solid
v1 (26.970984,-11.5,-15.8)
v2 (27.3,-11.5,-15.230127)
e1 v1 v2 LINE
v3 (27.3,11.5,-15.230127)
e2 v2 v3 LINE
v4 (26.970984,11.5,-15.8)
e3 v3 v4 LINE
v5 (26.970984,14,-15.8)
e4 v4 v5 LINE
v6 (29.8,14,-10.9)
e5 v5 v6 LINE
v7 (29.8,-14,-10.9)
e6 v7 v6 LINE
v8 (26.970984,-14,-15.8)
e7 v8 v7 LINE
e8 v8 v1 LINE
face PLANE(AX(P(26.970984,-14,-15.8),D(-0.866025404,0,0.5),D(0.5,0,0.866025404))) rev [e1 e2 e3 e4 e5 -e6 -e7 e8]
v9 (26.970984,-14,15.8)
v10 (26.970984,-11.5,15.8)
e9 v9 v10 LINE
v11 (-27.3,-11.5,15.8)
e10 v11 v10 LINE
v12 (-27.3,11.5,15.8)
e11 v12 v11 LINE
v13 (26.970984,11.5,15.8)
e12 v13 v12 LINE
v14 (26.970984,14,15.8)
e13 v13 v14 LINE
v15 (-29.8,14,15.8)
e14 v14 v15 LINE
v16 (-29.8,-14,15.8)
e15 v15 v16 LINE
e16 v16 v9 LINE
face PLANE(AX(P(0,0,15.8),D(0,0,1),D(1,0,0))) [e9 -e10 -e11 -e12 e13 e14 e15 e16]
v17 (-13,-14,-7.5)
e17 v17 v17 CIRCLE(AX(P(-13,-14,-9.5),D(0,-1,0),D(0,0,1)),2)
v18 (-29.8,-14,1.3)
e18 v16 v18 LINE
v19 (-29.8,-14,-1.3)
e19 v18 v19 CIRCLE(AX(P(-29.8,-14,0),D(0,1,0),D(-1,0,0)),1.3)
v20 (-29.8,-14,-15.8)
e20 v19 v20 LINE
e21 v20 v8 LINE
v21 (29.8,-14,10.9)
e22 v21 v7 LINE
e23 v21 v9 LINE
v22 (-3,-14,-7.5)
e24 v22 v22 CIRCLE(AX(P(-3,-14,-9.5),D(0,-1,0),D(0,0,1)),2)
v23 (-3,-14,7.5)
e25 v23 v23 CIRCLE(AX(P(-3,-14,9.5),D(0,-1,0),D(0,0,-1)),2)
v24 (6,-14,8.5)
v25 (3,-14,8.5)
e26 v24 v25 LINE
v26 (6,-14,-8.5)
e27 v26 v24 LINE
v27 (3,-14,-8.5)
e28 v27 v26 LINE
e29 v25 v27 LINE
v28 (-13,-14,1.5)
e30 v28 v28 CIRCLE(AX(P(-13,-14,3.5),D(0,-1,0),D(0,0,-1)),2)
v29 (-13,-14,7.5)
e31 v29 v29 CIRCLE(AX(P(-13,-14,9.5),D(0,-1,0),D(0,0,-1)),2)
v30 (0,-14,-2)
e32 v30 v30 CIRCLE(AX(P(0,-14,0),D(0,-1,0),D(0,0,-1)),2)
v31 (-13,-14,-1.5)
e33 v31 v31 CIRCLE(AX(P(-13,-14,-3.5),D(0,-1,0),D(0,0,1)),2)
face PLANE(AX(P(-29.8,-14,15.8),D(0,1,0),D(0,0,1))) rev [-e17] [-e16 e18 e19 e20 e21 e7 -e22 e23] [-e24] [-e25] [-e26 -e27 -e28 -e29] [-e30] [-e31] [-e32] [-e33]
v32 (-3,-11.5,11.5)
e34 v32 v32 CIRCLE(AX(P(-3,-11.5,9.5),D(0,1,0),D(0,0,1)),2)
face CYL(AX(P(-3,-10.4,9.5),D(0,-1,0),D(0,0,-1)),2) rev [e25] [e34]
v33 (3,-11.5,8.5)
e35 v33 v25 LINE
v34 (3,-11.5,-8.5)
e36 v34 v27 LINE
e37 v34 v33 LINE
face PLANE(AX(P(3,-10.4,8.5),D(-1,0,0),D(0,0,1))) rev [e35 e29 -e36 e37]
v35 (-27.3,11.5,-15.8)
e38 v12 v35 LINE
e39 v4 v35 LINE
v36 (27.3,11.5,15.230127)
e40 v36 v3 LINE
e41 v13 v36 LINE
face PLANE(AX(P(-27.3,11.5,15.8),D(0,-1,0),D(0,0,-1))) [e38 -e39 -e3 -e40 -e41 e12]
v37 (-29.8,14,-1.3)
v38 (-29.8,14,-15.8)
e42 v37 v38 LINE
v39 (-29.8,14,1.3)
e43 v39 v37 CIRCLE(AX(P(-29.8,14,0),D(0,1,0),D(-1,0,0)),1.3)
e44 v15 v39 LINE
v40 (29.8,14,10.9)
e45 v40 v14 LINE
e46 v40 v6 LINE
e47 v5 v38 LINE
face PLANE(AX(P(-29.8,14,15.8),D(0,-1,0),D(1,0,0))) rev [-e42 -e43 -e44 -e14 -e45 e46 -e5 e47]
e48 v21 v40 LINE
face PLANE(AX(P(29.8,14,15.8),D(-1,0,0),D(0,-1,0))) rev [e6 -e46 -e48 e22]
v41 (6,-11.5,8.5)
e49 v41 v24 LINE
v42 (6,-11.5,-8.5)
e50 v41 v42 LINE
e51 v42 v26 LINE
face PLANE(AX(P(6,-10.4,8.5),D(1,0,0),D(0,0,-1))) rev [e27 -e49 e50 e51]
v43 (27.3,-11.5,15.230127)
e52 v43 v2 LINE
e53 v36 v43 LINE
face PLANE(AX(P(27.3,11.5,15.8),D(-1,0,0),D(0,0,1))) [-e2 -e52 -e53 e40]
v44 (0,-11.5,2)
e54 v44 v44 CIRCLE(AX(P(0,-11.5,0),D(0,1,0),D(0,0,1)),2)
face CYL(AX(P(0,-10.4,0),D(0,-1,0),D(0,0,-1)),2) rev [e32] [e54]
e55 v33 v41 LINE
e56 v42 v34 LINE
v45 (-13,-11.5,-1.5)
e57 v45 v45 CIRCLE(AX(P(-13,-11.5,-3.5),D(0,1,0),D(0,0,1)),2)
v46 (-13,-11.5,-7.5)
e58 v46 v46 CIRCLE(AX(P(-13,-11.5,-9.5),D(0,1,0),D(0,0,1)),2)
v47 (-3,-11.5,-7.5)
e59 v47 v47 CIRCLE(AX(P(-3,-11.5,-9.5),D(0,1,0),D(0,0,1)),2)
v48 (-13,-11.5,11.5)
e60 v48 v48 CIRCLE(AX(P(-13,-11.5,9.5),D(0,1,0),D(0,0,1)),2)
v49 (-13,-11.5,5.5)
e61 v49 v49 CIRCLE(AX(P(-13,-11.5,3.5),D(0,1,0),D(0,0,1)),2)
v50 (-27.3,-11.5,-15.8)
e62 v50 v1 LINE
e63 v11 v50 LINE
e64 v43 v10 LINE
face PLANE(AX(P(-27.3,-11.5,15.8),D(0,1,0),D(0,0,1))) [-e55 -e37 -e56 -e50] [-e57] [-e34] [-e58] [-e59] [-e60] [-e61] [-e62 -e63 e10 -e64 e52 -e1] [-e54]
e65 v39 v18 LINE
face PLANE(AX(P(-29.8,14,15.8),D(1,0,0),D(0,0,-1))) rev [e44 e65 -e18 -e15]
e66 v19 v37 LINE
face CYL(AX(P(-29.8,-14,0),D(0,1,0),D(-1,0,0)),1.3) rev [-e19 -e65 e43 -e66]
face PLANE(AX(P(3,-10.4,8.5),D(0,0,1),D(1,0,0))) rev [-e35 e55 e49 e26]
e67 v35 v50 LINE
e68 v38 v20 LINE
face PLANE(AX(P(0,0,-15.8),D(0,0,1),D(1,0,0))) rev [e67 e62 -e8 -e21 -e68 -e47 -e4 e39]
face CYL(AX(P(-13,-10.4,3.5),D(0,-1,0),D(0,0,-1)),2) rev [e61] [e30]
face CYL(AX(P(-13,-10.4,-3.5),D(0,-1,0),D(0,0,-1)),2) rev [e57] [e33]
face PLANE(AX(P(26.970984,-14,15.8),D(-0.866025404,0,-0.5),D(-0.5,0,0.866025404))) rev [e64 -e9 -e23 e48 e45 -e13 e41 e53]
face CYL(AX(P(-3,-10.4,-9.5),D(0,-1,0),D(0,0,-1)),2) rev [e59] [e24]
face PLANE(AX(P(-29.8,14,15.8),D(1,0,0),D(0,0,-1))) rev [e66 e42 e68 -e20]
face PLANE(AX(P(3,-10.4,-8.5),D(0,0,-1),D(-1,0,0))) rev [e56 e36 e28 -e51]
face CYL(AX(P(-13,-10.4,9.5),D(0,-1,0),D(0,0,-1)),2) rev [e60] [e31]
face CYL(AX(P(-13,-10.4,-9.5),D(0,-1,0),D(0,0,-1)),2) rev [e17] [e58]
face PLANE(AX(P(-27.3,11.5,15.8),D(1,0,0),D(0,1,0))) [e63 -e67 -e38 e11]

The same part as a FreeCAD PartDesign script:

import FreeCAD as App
import Part
import Sketcher
from FreeCAD import Vector
Q = App.Units.Quantity

doc = App.newDocument("Part")
params = doc.addObject("Spreadsheet::Sheet", "Params")
for row, (alias, value) in enumerate([
    ("sketch1_height", "28 mm"),
    ("sketch1_height2", "23 mm"),
    ("sketch1_width", "59.6 mm"),
    ("sketch1_width2", "54.6 mm"),
    ("pad1_length", "31.6 mm"),
    ("sketch2_diameter", "2.6 mm"),
    ("sketch2_height", "4.9 mm"),
    ("sketch3_diameter", "4 mm"),
    ("sketch3_width", "3 mm"),
    ("sketch3_height", "17 mm"),
    ("pocket2_length", "3.6 mm"),
], start=1):
    params.set(f"A{row}", alias)
    params.set(f"B{row}", "=" + value)
    params.setAlias(f"B{row}", alias)

body = doc.addObject("PartDesign::Body", "Body")

# Sketch on XY plane
sketch1 = doc.addObject("Sketcher::SketchObject", "Sketch")
body.addObject(sketch1)
sketch1.AttachmentSupport = (doc.XY_Plane, [""])
sketch1.MapMode = "FlatFace"
sketch1.addGeometry(Part.LineSegment(Vector(-29.8, 14, 0), Vector(-29.8, -14, 0)), False)
sketch1.addGeometry(Part.LineSegment(Vector(-29.8, -14, 0), Vector(29.8, -14, 0)), False)
sketch1.addGeometry(Part.LineSegment(Vector(29.8, -14, 0), Vector(29.8, 14, 0)), False)
sketch1.addGeometry(Part.LineSegment(Vector(29.8, 14, 0), Vector(-29.8, 14, 0)), False)
sketch1.addGeometry(Part.LineSegment(Vector(27.3, -11.5, 0), Vector(-27.3, -11.5, 0)), False)
sketch1.addGeometry(Part.LineSegment(Vector(-27.3, -11.5, 0), Vector(-27.3, 11.5, 0)), False)
sketch1.addGeometry(Part.LineSegment(Vector(-27.3, 11.5, 0), Vector(27.3, 11.5, 0)), False)
sketch1.addGeometry(Part.LineSegment(Vector(27.3, 11.5, 0), Vector(27.3, -11.5, 0)), False)
sketch1.addConstraint(Sketcher.Constraint("Coincident", 0, 2, 1, 1))
sketch1.addConstraint(Sketcher.Constraint("Coincident", 1, 2, 2, 1))
sketch1.addConstraint(Sketcher.Constraint("Coincident", 2, 2, 3, 1))
sketch1.addConstraint(Sketcher.Constraint("Coincident", 3, 2, 0, 1))
sketch1.addConstraint(Sketcher.Constraint("Coincident", 4, 2, 5, 1))
sketch1.addConstraint(Sketcher.Constraint("Coincident", 5, 2, 6, 1))
sketch1.addConstraint(Sketcher.Constraint("Coincident", 6, 2, 7, 1))
sketch1.addConstraint(Sketcher.Constraint("Coincident", 7, 2, 4, 1))
sketch1.addConstraint(Sketcher.Constraint("Vertical", 0))
sketch1.addConstraint(Sketcher.Constraint("Horizontal", 1))
sketch1.addConstraint(Sketcher.Constraint("Vertical", 2))
sketch1.addConstraint(Sketcher.Constraint("Horizontal", 3))
sketch1.addConstraint(Sketcher.Constraint("Horizontal", 4))
sketch1.addConstraint(Sketcher.Constraint("Vertical", 5))
sketch1.addConstraint(Sketcher.Constraint("Horizontal", 6))
sketch1.addConstraint(Sketcher.Constraint("Vertical", 7))
sketch1.addConstraint(Sketcher.Constraint("Symmetric", 0, 2, 2, 2, -1, 1))
sketch1.addConstraint(Sketcher.Constraint("Symmetric", 4, 2, 6, 2, -1, 1))
sketch1.addConstraint(Sketcher.Constraint("DistanceY", 0, 2, 0, 1, 28.0))
sketch1.addConstraint(Sketcher.Constraint("DistanceY", 5, 1, 5, 2, 23.0))
sketch1.addConstraint(Sketcher.Constraint("DistanceX", 1, 1, 1, 2, 59.6))
sketch1.addConstraint(Sketcher.Constraint("DistanceX", 4, 2, 4, 1, 54.6))
sketch1.setExpression("Constraints[18]", "Params.sketch1_height")
sketch1.setExpression("Constraints[19]", "Params.sketch1_height2")
sketch1.setExpression("Constraints[20]", "Params.sketch1_width")
sketch1.setExpression("Constraints[21]", "Params.sketch1_width2")
pad1 = doc.addObject("PartDesign::Pad", "Pad")
body.addObject(pad1)
pad1.Profile = sketch1
pad1.setExpression("Length", "Params.pad1_length")
pad1.Midplane = True

# Sketch on XZ plane
sketch2 = doc.addObject("Sketcher::SketchObject", "Sketch001")
body.addObject(sketch2)
sketch2.AttachmentSupport = (doc.XZ_Plane, [""])
sketch2.MapMode = "FlatFace"
sketch2.AttachmentOffset = App.Placement(Vector(0, 0, -14), App.Rotation())
sketch2.addGeometry(Part.Circle(Vector(-29.8, 0, 0), Vector(0, 0, 1), 1.3), False)
sketch2.addGeometry(Part.LineSegment(Vector(29.8, 10.9, 0), Vector(26.970984, 15.8, 0)), False)
sketch2.addGeometry(Part.LineSegment(Vector(26.970984, 15.8, 0), Vector(29.8, 15.8, 0)), False)
sketch2.addGeometry(Part.LineSegment(Vector(29.8, 15.8, 0), Vector(29.8, 10.9, 0)), False)
sketch2.addGeometry(Part.LineSegment(Vector(29.8, -15.8, 0), Vector(26.970984, -15.8, 0)), False)
sketch2.addGeometry(Part.LineSegment(Vector(26.970984, -15.8, 0), Vector(29.8, -10.9, 0)), False)
sketch2.addGeometry(Part.LineSegment(Vector(29.8, -10.9, 0), Vector(29.8, -15.8, 0)), False)
sketch2.addConstraint(Sketcher.Constraint("Coincident", 1, 2, 2, 1))
sketch2.addConstraint(Sketcher.Constraint("Coincident", 2, 2, 3, 1))
sketch2.addConstraint(Sketcher.Constraint("Coincident", 3, 2, 1, 1))
sketch2.addConstraint(Sketcher.Constraint("Coincident", 4, 2, 5, 1))
sketch2.addConstraint(Sketcher.Constraint("Coincident", 5, 2, 6, 1))
sketch2.addConstraint(Sketcher.Constraint("Coincident", 6, 2, 4, 1))
sketch2.addConstraint(Sketcher.Constraint("Horizontal", 2))
sketch2.addConstraint(Sketcher.Constraint("Vertical", 3))
sketch2.addConstraint(Sketcher.Constraint("Horizontal", 4))
sketch2.addConstraint(Sketcher.Constraint("Vertical", 6))
sketch2.addConstraint(Sketcher.Constraint("Symmetric", 1, 2, 4, 2, -1))
sketch2.addConstraint(Sketcher.Constraint("Symmetric", 3, 2, 5, 2, -1))
sketch2.addConstraint(Sketcher.Constraint("PointOnObject", 0, 3, -1))
sketch2.addConstraint(Sketcher.Constraint("Diameter", 0, 2.6))
sketch2.addConstraint(Sketcher.Constraint("Angle", 1, Q("120 deg")))
sketch2.addConstraint(Sketcher.Constraint("DistanceY", 3, 2, 3, 1, 4.9))
sketch2.addConstraint(Sketcher.Constraint("DistanceX", 0, 3, -1, 1, 29.8))
sketch2.addConstraint(Sketcher.Constraint("DistanceY", -1, 1, 1, 2, 15.8))
sketch2.addConstraint(Sketcher.Constraint("DistanceX", -1, 1, 2, 2, 29.8))
sketch2.setExpression("Constraints[13]", "Params.sketch2_diameter")
sketch2.setExpression("Constraints[15]", "Params.sketch2_height")
pocket1 = doc.addObject("PartDesign::Pocket", "Pocket")
body.addObject(pocket1)
pocket1.Profile = sketch2
pocket1.Type = "ThroughAll"
pocket1.Reversed = True

# Sketch on XZ plane
sketch3 = doc.addObject("Sketcher::SketchObject", "Sketch002")
body.addObject(sketch3)
sketch3.AttachmentSupport = (doc.XZ_Plane, [""])
sketch3.MapMode = "FlatFace"
sketch3.AttachmentOffset = App.Placement(Vector(0, 0, 14), App.Rotation())
sketch3.addGeometry(Part.Circle(Vector(0, 0, 0), Vector(0, 0, 1), 2), False)
sketch3.addGeometry(Part.Circle(Vector(-3, 9.5, 0), Vector(0, 0, 1), 2), False)
sketch3.addGeometry(Part.Circle(Vector(-13, 9.5, 0), Vector(0, 0, 1), 2), False)
sketch3.addGeometry(Part.Circle(Vector(-13, 3.5, 0), Vector(0, 0, 1), 2), False)
sketch3.addGeometry(Part.Circle(Vector(-13, -3.5, 0), Vector(0, 0, 1), 2), False)
sketch3.addGeometry(Part.Circle(Vector(-13, -9.5, 0), Vector(0, 0, 1), 2), False)
sketch3.addGeometry(Part.Circle(Vector(-3, -9.5, 0), Vector(0, 0, 1), 2), False)
sketch3.addGeometry(Part.LineSegment(Vector(3, 8.5, 0), Vector(3, -8.5, 0)), False)
sketch3.addGeometry(Part.LineSegment(Vector(3, -8.5, 0), Vector(6, -8.5, 0)), False)
sketch3.addGeometry(Part.LineSegment(Vector(6, -8.5, 0), Vector(6, 8.5, 0)), False)
sketch3.addGeometry(Part.LineSegment(Vector(6, 8.5, 0), Vector(3, 8.5, 0)), False)
sketch3.addConstraint(Sketcher.Constraint("Coincident", 7, 2, 8, 1))
sketch3.addConstraint(Sketcher.Constraint("Coincident", 8, 2, 9, 1))
sketch3.addConstraint(Sketcher.Constraint("Coincident", 9, 2, 10, 1))
sketch3.addConstraint(Sketcher.Constraint("Coincident", 10, 2, 7, 1))
sketch3.addConstraint(Sketcher.Constraint("Vertical", 7))
sketch3.addConstraint(Sketcher.Constraint("Horizontal", 8))
sketch3.addConstraint(Sketcher.Constraint("Vertical", 9))
sketch3.addConstraint(Sketcher.Constraint("Horizontal", 10))
sketch3.addConstraint(Sketcher.Constraint("Coincident", 0, 3, -1, 1))
sketch3.addConstraint(Sketcher.Constraint("Equal", 0, 1))
sketch3.addConstraint(Sketcher.Constraint("Equal", 1, 2))
sketch3.addConstraint(Sketcher.Constraint("Equal", 2, 3))
sketch3.addConstraint(Sketcher.Constraint("Equal", 3, 4))
sketch3.addConstraint(Sketcher.Constraint("Equal", 4, 5))
sketch3.addConstraint(Sketcher.Constraint("Equal", 5, 6))
sketch3.addConstraint(Sketcher.Constraint("Symmetric", 3, 3, 4, 3, -1))
sketch3.addConstraint(Sketcher.Constraint("Symmetric", 2, 3, 5, 3, -1))
sketch3.addConstraint(Sketcher.Constraint("Symmetric", 1, 3, 6, 3, -1))
sketch3.addConstraint(Sketcher.Constraint("Horizontal", 1, 3, 2, 3))
sketch3.addConstraint(Sketcher.Constraint("Vertical", 2, 3, 3, 3))
sketch3.addConstraint(Sketcher.Constraint("Diameter", 0, 4.0))
sketch3.addConstraint(Sketcher.Constraint("DistanceX", 8, 1, 8, 2, 3.0))
sketch3.addConstraint(Sketcher.Constraint("DistanceY", 7, 2, 7, 1, 17.0))
sketch3.addConstraint(Sketcher.Constraint("DistanceX", 1, 3, -1, 1, 3.0))
sketch3.addConstraint(Sketcher.Constraint("DistanceX", 2, 3, -1, 1, 13.0))
sketch3.addConstraint(Sketcher.Constraint("DistanceX", -1, 1, 7, 2, 3.0))
sketch3.addConstraint(Sketcher.Constraint("DistanceY", 3, 3, 2, 3, 6.0))
sketch3.addConstraint(Sketcher.Constraint("DistanceY", 4, 3, 3, 3, 7.0))
sketch3.addConstraint(Sketcher.Constraint("DistanceY", 6, 3, 7, 2, 1.0))
sketch3.setExpression("Constraints[20]", "Params.sketch3_diameter")
sketch3.setExpression("Constraints[21]", "Params.sketch3_width")
sketch3.setExpression("Constraints[22]", "Params.sketch3_height")
pocket2 = doc.addObject("PartDesign::Pocket", "Pocket001")
body.addObject(pocket2)
pocket2.Profile = sketch3
pocket2.setExpression("Length", "Params.pocket2_length")

doc.recompute()
